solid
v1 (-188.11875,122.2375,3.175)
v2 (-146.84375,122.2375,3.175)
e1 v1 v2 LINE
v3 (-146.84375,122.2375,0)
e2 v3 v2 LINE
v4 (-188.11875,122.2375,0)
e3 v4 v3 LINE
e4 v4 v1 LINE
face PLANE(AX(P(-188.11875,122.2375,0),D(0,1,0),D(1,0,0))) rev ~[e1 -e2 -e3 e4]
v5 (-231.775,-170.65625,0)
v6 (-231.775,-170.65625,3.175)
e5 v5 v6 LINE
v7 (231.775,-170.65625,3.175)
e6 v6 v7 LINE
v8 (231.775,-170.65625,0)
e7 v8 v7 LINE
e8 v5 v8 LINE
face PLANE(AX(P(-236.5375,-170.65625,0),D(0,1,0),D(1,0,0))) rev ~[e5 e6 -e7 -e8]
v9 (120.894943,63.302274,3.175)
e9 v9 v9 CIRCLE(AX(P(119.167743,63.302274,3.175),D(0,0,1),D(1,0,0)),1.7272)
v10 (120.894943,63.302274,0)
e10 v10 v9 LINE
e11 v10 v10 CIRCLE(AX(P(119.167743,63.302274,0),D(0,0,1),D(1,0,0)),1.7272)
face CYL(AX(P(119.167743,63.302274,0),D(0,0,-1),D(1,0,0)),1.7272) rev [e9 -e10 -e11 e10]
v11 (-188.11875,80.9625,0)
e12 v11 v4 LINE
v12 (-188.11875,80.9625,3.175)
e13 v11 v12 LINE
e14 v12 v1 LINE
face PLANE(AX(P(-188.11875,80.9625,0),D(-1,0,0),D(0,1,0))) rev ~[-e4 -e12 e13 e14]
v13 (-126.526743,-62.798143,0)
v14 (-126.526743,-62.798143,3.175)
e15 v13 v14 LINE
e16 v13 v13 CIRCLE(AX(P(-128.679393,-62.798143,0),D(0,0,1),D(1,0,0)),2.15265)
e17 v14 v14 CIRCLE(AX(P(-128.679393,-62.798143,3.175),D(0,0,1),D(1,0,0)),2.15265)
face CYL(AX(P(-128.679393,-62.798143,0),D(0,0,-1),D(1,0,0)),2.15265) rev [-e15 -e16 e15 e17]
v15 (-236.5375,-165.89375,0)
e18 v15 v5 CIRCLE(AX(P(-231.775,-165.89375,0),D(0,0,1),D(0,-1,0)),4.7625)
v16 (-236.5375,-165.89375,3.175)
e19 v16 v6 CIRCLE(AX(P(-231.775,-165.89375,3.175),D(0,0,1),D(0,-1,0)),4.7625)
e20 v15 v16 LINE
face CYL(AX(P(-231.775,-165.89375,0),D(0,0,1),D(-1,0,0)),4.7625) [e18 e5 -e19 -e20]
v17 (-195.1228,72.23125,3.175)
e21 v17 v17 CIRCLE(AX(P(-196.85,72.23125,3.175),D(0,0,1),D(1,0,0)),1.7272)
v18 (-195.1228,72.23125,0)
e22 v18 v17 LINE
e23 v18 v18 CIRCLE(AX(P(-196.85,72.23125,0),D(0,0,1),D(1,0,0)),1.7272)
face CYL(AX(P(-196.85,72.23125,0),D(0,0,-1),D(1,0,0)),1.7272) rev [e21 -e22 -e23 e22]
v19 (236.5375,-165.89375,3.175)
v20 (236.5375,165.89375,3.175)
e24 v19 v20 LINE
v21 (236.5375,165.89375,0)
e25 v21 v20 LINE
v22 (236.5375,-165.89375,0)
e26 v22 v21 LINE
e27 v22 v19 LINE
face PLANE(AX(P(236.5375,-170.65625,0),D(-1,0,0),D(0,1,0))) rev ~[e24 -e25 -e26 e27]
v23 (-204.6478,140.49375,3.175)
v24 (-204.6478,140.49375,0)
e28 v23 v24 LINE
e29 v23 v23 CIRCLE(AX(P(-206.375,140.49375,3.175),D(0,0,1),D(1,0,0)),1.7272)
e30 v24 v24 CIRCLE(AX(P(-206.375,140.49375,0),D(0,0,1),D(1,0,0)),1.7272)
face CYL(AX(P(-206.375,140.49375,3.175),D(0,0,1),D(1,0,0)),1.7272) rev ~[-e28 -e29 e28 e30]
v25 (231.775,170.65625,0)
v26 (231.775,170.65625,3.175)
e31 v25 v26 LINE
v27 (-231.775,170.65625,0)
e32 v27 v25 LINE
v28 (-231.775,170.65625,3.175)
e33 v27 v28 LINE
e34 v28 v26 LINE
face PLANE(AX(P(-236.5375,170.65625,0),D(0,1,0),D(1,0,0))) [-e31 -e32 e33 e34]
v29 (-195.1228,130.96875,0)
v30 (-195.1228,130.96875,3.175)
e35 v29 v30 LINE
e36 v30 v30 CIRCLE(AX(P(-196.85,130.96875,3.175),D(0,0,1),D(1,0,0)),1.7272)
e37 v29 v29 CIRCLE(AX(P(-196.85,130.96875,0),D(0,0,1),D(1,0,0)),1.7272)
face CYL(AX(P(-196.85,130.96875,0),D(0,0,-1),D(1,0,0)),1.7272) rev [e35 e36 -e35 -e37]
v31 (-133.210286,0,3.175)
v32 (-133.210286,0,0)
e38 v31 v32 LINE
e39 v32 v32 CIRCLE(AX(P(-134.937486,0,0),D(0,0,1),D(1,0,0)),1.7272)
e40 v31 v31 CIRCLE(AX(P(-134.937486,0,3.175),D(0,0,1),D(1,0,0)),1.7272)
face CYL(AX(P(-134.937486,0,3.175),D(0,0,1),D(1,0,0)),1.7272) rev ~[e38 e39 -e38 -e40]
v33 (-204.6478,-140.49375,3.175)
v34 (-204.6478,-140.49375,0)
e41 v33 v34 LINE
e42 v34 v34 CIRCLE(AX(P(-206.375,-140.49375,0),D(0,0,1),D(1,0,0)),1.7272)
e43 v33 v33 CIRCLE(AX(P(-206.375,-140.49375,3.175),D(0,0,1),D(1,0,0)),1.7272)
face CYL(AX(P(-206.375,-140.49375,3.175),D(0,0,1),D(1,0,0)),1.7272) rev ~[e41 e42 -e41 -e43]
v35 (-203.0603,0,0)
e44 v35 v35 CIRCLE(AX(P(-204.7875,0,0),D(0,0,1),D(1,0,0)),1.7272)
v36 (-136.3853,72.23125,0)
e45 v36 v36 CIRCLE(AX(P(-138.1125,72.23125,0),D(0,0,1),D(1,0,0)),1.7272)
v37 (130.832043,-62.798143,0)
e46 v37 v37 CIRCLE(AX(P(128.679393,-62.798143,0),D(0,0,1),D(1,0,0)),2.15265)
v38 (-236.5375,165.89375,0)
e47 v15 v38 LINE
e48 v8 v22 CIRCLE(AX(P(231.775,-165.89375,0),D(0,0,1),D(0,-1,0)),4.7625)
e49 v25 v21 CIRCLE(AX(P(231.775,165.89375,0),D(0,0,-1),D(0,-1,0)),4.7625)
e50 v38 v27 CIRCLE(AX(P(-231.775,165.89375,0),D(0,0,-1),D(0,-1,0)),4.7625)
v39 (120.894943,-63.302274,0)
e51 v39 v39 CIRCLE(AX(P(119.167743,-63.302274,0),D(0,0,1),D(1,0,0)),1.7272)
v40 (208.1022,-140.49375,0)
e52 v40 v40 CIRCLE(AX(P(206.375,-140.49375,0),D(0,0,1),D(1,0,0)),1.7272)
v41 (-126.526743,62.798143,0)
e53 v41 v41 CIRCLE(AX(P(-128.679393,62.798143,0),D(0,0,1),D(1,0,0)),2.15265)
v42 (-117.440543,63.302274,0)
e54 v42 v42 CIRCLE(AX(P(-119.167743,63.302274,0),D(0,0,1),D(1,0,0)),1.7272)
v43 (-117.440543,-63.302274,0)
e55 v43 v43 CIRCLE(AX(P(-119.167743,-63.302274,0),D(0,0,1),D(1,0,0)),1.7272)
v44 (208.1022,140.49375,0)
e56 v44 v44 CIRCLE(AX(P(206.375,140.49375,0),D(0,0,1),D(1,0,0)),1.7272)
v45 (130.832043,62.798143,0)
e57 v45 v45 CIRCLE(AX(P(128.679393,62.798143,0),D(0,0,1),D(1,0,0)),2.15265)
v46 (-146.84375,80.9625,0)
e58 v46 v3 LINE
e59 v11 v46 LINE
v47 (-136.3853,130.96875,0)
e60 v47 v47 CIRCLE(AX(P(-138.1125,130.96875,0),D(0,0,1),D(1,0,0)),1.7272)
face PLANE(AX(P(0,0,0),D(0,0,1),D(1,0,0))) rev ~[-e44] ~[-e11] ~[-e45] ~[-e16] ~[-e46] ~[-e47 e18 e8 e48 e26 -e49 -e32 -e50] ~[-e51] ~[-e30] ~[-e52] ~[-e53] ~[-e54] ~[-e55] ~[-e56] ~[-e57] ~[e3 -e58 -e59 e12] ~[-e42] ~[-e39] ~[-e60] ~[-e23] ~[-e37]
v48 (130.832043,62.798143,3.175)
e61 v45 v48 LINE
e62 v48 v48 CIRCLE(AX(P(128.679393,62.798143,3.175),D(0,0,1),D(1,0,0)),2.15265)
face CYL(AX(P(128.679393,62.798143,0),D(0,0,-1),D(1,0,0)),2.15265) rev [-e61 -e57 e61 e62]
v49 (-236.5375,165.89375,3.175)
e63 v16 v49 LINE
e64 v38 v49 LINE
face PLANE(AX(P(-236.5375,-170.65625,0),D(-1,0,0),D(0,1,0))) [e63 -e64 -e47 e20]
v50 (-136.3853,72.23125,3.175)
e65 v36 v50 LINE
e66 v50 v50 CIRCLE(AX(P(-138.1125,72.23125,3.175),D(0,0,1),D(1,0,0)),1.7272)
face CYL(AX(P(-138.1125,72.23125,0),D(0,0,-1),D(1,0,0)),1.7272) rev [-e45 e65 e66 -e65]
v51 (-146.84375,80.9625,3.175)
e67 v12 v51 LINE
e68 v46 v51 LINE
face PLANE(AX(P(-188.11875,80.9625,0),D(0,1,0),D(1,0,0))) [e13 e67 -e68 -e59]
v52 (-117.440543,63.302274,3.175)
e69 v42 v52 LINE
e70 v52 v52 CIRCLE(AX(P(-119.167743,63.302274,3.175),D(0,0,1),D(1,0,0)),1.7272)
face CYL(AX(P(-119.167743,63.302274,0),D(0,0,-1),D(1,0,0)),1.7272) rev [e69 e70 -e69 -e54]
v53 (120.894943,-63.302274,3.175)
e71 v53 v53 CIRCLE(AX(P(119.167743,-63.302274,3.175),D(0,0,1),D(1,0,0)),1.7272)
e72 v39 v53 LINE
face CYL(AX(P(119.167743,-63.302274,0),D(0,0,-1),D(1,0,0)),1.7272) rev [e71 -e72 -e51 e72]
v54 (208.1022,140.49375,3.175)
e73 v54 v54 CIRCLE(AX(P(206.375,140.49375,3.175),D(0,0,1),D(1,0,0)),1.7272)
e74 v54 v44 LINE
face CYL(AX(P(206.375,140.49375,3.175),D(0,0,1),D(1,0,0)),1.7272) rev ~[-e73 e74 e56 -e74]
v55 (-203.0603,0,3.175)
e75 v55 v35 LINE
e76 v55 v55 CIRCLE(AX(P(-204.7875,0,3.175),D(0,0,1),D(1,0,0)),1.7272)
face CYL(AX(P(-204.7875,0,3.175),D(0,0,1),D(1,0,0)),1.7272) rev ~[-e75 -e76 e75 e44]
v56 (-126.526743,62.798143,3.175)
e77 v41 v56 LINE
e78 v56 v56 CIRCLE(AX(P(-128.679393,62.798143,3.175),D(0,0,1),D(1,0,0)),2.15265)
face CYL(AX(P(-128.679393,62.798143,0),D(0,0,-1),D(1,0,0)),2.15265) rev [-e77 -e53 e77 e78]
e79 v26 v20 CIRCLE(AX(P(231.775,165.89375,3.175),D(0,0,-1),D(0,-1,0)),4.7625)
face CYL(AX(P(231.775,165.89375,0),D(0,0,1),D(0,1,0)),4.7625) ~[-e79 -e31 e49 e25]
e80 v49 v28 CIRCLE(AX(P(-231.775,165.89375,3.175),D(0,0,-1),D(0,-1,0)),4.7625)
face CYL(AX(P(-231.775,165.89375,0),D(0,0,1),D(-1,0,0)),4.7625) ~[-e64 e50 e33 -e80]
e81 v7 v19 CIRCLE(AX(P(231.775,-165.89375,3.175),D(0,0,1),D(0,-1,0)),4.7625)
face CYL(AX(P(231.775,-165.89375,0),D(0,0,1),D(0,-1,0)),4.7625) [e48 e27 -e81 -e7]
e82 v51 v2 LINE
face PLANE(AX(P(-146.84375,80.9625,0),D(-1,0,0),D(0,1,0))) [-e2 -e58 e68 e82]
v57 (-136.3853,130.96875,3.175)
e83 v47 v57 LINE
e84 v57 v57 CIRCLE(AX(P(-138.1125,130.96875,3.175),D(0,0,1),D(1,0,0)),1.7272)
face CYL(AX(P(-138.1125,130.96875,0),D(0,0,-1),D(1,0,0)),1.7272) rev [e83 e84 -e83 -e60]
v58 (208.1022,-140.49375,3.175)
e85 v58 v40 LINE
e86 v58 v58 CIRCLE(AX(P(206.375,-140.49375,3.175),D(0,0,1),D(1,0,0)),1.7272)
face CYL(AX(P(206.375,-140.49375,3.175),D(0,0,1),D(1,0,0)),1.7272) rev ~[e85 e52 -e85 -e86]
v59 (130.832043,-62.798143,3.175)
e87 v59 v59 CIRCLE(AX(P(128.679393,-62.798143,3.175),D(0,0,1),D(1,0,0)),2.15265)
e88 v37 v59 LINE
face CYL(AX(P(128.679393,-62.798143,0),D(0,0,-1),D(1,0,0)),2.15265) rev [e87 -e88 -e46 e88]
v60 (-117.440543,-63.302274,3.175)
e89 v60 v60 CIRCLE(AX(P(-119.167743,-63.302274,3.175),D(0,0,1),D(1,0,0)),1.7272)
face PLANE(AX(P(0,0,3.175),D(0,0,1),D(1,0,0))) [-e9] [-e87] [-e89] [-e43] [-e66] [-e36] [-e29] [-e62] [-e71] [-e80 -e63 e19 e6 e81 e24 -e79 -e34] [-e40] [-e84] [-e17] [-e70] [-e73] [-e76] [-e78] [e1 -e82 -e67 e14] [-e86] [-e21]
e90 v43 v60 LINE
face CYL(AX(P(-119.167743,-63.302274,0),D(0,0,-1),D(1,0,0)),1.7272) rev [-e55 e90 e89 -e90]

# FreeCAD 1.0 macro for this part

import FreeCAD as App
import Part
import Sketcher
from FreeCAD import Vector
Q = App.Units.Quantity


def edges_at(feature, points):
    """Names of the edges that pass closest to the given points."""
    edges = feature.Shape.Edges
    near = lambda p: min(range(len(edges)), key=lambda i: edges[i].distToShape(Part.Vertex(*p))[0])
    return sorted({f"Edge{near(p) + 1}" for p in points})


def add_polygon(sketch, points):
    """Adds a closed chain of lines whose ends are joined by coincident constraints."""
    first, n = sketch.GeometryCount, len(points)
    for a, b in zip(points, points[1:] + points[:1]):
        sketch.addGeometry(Part.LineSegment(App.Vector(*a, 0), App.Vector(*b, 0)), False)
    for i in range(n):
        sketch.addConstraint(Sketcher.Constraint("Coincident", first + i, 2, first + (i + 1) % n, 1))

doc = App.newDocument("Part")
body = doc.addObject("PartDesign::Body", "Body")

# Sketch on XY plane
sketch1 = doc.addObject("Sketcher::SketchObject", "Sketch")
body.addObject(sketch1)
sketch1.AttachmentSupport = (doc.XY_Plane, [""])
sketch1.MapMode = "FlatFace"
add_polygon(sketch1, [(-236.5375, 170.65625), (-236.5375, -170.65625), (236.5375, -170.65625), (236.5375, 170.65625)])  # lines 0-3
sketch1.addGeometry(Part.Circle(Vector(-128.679393, -62.798143, 0), Vector(0, 0, 1), 2.15265), False)  # 4
sketch1.addGeometry(Part.Circle(Vector(-119.167743, -63.302274, 0), Vector(0, 0, 1), 1.7272), False)  # 5
sketch1.addGeometry(Part.Circle(Vector(119.167743, -63.302274, 0), Vector(0, 0, 1), 1.7272), False)  # 6
sketch1.addGeometry(Part.Circle(Vector(128.679393, -62.798143, 0), Vector(0, 0, 1), 2.15265), False)  # 7
sketch1.addGeometry(Part.Circle(Vector(-196.85, 72.23125, 0), Vector(0, 0, 1), 1.7272), False)  # 8
sketch1.addGeometry(Part.Circle(Vector(-128.679393, 62.798143, 0), Vector(0, 0, 1), 2.15265), False)  # 9
sketch1.addGeometry(Part.Circle(Vector(-119.167743, 63.302274, 0), Vector(0, 0, 1), 1.7272), False)  # 10
sketch1.addGeometry(Part.Circle(Vector(-138.1125, 72.23125, 0), Vector(0, 0, 1), 1.7272), False)  # 11
add_polygon(sketch1, [(-146.84375, 80.9625), (-188.11875, 80.9625), (-188.11875, 122.2375), (-146.84375, 122.2375)])  # lines 12-15
sketch1.addGeometry(Part.Circle(Vector(-196.85, 130.96875, 0), Vector(0, 0, 1), 1.7272), False)  # 16
sketch1.addGeometry(Part.Circle(Vector(-138.1125, 130.96875, 0), Vector(0, 0, 1), 1.7272), False)  # 17
sketch1.addGeometry(Part.Circle(Vector(119.167743, 63.302274, 0), Vector(0, 0, 1), 1.7272), False)  # 18
sketch1.addGeometry(Part.Circle(Vector(128.679393, 62.798143, 0), Vector(0, 0, 1), 2.15265), False)  # 19
sketch1.addConstraint([
    Sketcher.Constraint("Vertical", 0),
    Sketcher.Constraint("Horizontal", 1),
    Sketcher.Constraint("Vertical", 2),
    Sketcher.Constraint("Horizontal", 3),
    Sketcher.Constraint("Horizontal", 12),
    Sketcher.Constraint("Vertical", 13),
    Sketcher.Constraint("Horizontal", 14),
    Sketcher.Constraint("Vertical", 15),
    Sketcher.Constraint("Equal", 5, 6),
    Sketcher.Constraint("Equal", 4, 7),
    Sketcher.Constraint("Equal", 6, 8),
    Sketcher.Constraint("Equal", 7, 9),
    Sketcher.Constraint("Equal", 8, 10),
    Sketcher.Constraint("Equal", 10, 11),
    Sketcher.Constraint("Equal", 11, 16),
    Sketcher.Constraint("Equal", 16, 17),
    Sketcher.Constraint("Equal", 17, 18),
    Sketcher.Constraint("Equal", 9, 19),
    Sketcher.Constraint("Symmetric", 7, 3, 9, 3, -1, 1),
    Sketcher.Constraint("Symmetric", 6, 3, 10, 3, -1, 1),
    Sketcher.Constraint("Symmetric", 5, 3, 18, 3, -1, 1),
    Sketcher.Constraint("Symmetric", 4, 3, 19, 3, -1, 1),
    Sketcher.Constraint("Symmetric", 0, 2, 2, 2, -1, 1),
    Sketcher.Constraint("Symmetric", 5, 3, 6, 3, -2),
    Sketcher.Constraint("Symmetric", 4, 3, 7, 3, -2),
    Sketcher.Constraint("Horizontal", 8, 3, 11, 3),
    Sketcher.Constraint("Horizontal", 16, 3, 17, 3),
    Sketcher.Constraint("Vertical", 8, 3, 16, 3),
    Sketcher.Constraint("Vertical", 11, 3, 17, 3),
    Sketcher.Constraint("Equal", 14, 13),
    Sketcher.Constraint("Diameter", 5, Q("0.136 in")),
    Sketcher.Constraint("Diameter", 4, Q("0.1695 in")),
    Sketcher.Constraint("DistanceX", 1, 1, 1, 2, Q("18.625 in")),
    Sketcher.Constraint("DistanceX", 12, 2, 12, 1, Q("1.625 in")),
    Sketcher.Constraint("DistanceY", 0, 2, 0, 1, Q("13.4375 in")),
    Sketcher.Constraint("DistanceX", 8, 3, -1, 1, Q("7.75 in")),
    Sketcher.Constraint("DistanceY", -1, 1, 8, 3, Q("2.84375 in")),
    Sketcher.Constraint("DistanceX", 11, 3, -1, 1, Q("5.4375 in")),
    Sketcher.Constraint("DistanceY", -1, 1, 16, 3, Q("5.15625 in")),
    Sketcher.Constraint("DistanceX", 12, 2, -1, 1, Q("7.40625 in")),
    Sketcher.Constraint("DistanceY", -1, 1, 12, 2, Q("3.1875 in")),
    Sketcher.Constraint("DistanceX", 4, 3, 5, 3, Q("9.51165 mm")),
    Sketcher.Constraint("DistanceY", 5, 3, 4, 3, Q("0.504131 mm")),
    Sketcher.Constraint("DistanceX", 4, 3, -1, 1, Q("128.679393 mm")),
    Sketcher.Constraint("DistanceY", 4, 3, -1, 1, Q("62.798143 mm")),
])
pad1 = doc.addObject("PartDesign::Pad", "Pad")
body.addObject(pad1)
pad1.Profile = sketch1
pad1.Length = Q("0.125 in")
doc.recompute()

fillet = doc.addObject("PartDesign::Fillet", "Fillet")
body.addObject(fillet)
fillet.Base = (pad1, edges_at(pad1, [
    (236.537, -170.656, 1.587),
    (236.537, 170.656, 1.587),
    (-236.537, 170.656, 1.587),
    (-236.537, -170.656, 1.587),
]))
fillet.Radius = Q("0.1875 in")

# Sketch on XY plane
sketch2 = doc.addObject("Sketcher::SketchObject", "Sketch001")
body.addObject(sketch2)
sketch2.AttachmentSupport = (doc.XY_Plane, [""])
sketch2.MapMode = "FlatFace"
sketch2.AttachmentOffset = App.Placement(Vector(0, 0, 0.125 * 25.4), App.Rotation())
sketch2.addGeometry([
    Part.Circle(Vector(-206.375, -140.49375, 0), Vector(0, 0, 1), 1.7272),
    Part.Circle(Vector(-206.375, 140.49375, 0), Vector(0, 0, 1), 1.7272),
    Part.Circle(Vector(206.375, 140.49375, 0), Vector(0, 0, 1), 1.7272),
    Part.Circle(Vector(206.375, -140.49375, 0), Vector(0, 0, 1), 1.7272),
], False)
sketch2.addConstraint([
    Sketcher.Constraint("Equal", 0, 1),
    Sketcher.Constraint("Equal", 1, 2),
    Sketcher.Constraint("Equal", 2, 3),
    Sketcher.Constraint("Symmetric", 0, 3, 2, 3, -1, 1),
    Sketcher.Constraint("Symmetric", 1, 3, 3, 3, -1, 1),
    Sketcher.Constraint("Symmetric", 1, 3, 2, 3, -2),
    Sketcher.Constraint("Diameter", 0, Q("0.136 in")),
    Sketcher.Constraint("DistanceX", 1, 3, 2, 3, Q("16.25 in")),
    Sketcher.Constraint("DistanceY", 0, 3, -1, 1, Q("5.53125 in")),
])
pocket1 = doc.addObject("PartDesign::Pocket", "Pocket")
body.addObject(pocket1)
pocket1.Profile = sketch2
pocket1.Type = "ThroughAll"

# Sketch on XY plane
sketch3 = doc.addObject("Sketcher::SketchObject", "Sketch002")
body.addObject(sketch3)
sketch3.AttachmentSupport = (doc.XY_Plane, [""])
sketch3.MapMode = "FlatFace"
sketch3.AttachmentOffset = App.Placement(Vector(0, 0, 0.125 * 25.4), App.Rotation())
sketch3.addGeometry([
    Part.Circle(Vector(-134.937486, 0, 0), Vector(0, 0, 1), 1.7272),
    Part.Circle(Vector(-204.7875, 0, 0), Vector(0, 0, 1), 1.7272),
], False)
sketch3.addConstraint([
    Sketcher.Constraint("Equal", 0, 1),
    Sketcher.Constraint("PointOnObject", 0, 3, -1),
    Sketcher.Constraint("PointOnObject", 1, 3, -1),
    Sketcher.Constraint("Diameter", 0, Q("0.136 in")),
    Sketcher.Constraint("DistanceX", 1, 3, -1, 1, Q("8.0625 in")),
    Sketcher.Constraint("DistanceX", 0, 3, -1, 1, Q("134.937486 mm")),
])
pocket2 = doc.addObject("PartDesign::Pocket", "Pocket001")
body.addObject(pocket2)
pocket2.Profile = sketch3
pocket2.Type = "ThroughAll"

doc.recompute()
